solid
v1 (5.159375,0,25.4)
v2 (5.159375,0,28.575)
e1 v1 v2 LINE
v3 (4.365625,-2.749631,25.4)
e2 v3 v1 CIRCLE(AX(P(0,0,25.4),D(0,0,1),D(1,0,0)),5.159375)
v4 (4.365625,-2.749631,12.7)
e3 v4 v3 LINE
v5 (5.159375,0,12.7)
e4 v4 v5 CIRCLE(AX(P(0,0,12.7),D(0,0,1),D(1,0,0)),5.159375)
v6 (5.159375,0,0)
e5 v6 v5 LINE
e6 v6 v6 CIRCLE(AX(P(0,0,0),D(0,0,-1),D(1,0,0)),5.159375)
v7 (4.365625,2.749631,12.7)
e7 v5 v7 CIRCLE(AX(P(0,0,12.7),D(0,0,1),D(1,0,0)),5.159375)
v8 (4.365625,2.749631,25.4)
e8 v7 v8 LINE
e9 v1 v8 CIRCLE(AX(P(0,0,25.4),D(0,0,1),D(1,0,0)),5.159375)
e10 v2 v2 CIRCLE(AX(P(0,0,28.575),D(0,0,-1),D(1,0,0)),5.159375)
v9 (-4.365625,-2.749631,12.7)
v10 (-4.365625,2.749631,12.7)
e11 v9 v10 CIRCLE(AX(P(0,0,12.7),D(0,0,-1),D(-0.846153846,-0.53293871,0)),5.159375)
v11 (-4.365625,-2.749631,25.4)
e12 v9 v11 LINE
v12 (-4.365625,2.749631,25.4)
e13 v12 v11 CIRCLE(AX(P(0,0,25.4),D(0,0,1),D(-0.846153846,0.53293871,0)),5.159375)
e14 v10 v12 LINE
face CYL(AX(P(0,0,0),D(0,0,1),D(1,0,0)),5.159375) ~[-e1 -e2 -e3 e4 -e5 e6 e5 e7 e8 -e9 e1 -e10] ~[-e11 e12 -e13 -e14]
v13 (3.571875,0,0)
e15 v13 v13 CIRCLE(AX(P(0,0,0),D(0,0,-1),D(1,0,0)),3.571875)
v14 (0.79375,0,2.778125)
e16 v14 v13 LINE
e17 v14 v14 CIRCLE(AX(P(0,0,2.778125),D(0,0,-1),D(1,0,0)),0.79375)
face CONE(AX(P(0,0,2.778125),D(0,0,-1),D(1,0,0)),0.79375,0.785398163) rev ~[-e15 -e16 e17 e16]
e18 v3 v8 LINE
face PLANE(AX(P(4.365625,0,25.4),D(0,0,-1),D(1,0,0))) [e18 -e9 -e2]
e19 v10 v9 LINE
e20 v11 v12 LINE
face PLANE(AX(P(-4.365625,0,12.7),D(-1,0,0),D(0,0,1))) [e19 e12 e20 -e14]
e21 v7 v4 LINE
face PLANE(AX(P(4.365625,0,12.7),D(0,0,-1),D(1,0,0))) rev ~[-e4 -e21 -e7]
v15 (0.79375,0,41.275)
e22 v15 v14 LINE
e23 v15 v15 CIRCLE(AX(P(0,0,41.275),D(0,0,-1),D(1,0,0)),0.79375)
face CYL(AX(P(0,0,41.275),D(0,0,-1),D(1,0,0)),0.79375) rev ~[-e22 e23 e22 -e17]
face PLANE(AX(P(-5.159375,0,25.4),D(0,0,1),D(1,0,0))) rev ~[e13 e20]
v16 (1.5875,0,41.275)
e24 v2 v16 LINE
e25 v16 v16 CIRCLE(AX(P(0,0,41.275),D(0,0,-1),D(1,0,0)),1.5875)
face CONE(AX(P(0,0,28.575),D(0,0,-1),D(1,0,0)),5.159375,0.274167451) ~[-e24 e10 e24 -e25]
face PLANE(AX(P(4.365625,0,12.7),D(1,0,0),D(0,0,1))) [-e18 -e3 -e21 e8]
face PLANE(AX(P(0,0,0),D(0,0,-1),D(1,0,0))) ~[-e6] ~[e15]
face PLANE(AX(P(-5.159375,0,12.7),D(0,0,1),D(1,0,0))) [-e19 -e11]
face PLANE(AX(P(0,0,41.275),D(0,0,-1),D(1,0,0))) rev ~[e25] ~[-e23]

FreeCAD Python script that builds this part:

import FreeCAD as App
import Part
import Sketcher
Q = App.Units.Quantity

doc = App.newDocument("Part")
body = doc.addObject("PartDesign::Body", "Body")

sketch1 = body.newObject("Sketcher::SketchObject", "Sketch")
sketch1.AttachmentSupport = (doc.getObject("XZ_Plane"), [""])
sketch1.MapMode = "FlatFace"
sketch1.addGeometry([
    Part.LineSegment(App.Vector(3.6, 0, 0), App.Vector(5.2, 0, 0)),
    Part.LineSegment(App.Vector(5.2, 0, 0), App.Vector(5.2, 28.6, 0)),
    Part.LineSegment(App.Vector(5.2, 28.6, 0), App.Vector(1.6, 41.3, 0)),
    Part.LineSegment(App.Vector(1.6, 41.3, 0), App.Vector(0.8, 41.3, 0)),
    Part.LineSegment(App.Vector(0.8, 41.3, 0), App.Vector(0.8, 2.8, 0)),
    Part.LineSegment(App.Vector(0.8, 2.8, 0), App.Vector(3.6, 0, 0)),
], False)
sketch1.addConstraint([
    Sketcher.Constraint("Coincident", 0, 2, 1, 1),
    Sketcher.Constraint("Coincident", 1, 2, 2, 1),
    Sketcher.Constraint("Coincident", 2, 2, 3, 1),
    Sketcher.Constraint("Coincident", 3, 2, 4, 1),
    Sketcher.Constraint("Coincident", 4, 2, 5, 1),
    Sketcher.Constraint("Coincident", 5, 2, 0, 1),
    Sketcher.Constraint("Horizontal", 0),
    Sketcher.Constraint("Vertical", 1),
    Sketcher.Constraint("Horizontal", 3),
    Sketcher.Constraint("Vertical", 4),
    Sketcher.Constraint("PointOnObject", 0, 2, -1),
    Sketcher.Constraint("Angle", 5, Q("-45 deg")),
    Sketcher.Constraint("DistanceY", 1, 2, 2, 2, Q("0.5 in")),
    Sketcher.Constraint("DistanceX", 0, 1, 0, 2, Q("0.0625 in")),
    Sketcher.Constraint("DistanceX", 3, 2, 3, 1, Q("0.03125 in")),
    Sketcher.Constraint("DistanceY", 1, 1, 1, 2, Q("1.125 in")),
    Sketcher.Constraint("DistanceY", 4, 2, 4, 1, Q("1.515625 in")),
    Sketcher.Constraint("DistanceX", -1, 1, 0, 2, Q("0.203125 in")),
])
revolution = body.newObject("PartDesign::Revolution", "Revolution")
revolution.Profile = sketch1
revolution.ReferenceAxis = (sketch1, ["V_Axis"])
revolution.Angle = 360

sketch2 = body.newObject("Sketcher::SketchObject", "Sketch001")
sketch2.AttachmentSupport = (doc.getObject("XZ_Plane"), [""])
sketch2.MapMode = "FlatFace"
sketch2.addGeometry([
    Part.LineSegment(App.Vector(-5.2, 25.4, 0), App.Vector(-5.2, 12.7, 0)),
    Part.LineSegment(App.Vector(-5.2, 12.7, 0), App.Vector(-4.4, 12.7, 0)),
    Part.LineSegment(App.Vector(-4.4, 12.7, 0), App.Vector(-4.4, 25.4, 0)),
    Part.LineSegment(App.Vector(-4.4, 25.4, 0), App.Vector(-5.2, 25.4, 0)),
    Part.LineSegment(App.Vector(4.4, 25.4, 0), App.Vector(4.4, 12.7, 0)),
    Part.LineSegment(App.Vector(4.4, 12.7, 0), App.Vector(5.2, 12.7, 0)),
    Part.LineSegment(App.Vector(5.2, 12.7, 0), App.Vector(5.2, 25.4, 0)),
    Part.LineSegment(App.Vector(5.2, 25.4, 0), App.Vector(4.4, 25.4, 0)),
], False)
sketch2.addConstraint([
    Sketcher.Constraint("Coincident", 0, 2, 1, 1),
    Sketcher.Constraint("Coincident", 1, 2, 2, 1),
    Sketcher.Constraint("Coincident", 2, 2, 3, 1),
    Sketcher.Constraint("Coincident", 3, 2, 0, 1),
    Sketcher.Constraint("Coincident", 4, 2, 5, 1),
    Sketcher.Constraint("Coincident", 5, 2, 6, 1),
    Sketcher.Constraint("Coincident", 6, 2, 7, 1),
    Sketcher.Constraint("Coincident", 7, 2, 4, 1),
    Sketcher.Constraint("Vertical", 0),
    Sketcher.Constraint("Horizontal", 1),
    Sketcher.Constraint("Vertical", 2),
    Sketcher.Constraint("Horizontal", 3),
    Sketcher.Constraint("Vertical", 4),
    Sketcher.Constraint("Horizontal", 5),
    Sketcher.Constraint("Vertical", 6),
    Sketcher.Constraint("Horizontal", 7),
    Sketcher.Constraint("Symmetric", 1, 2, 4, 2, -2),
    Sketcher.Constraint("Symmetric", 3, 2, 6, 2, -2),
    Sketcher.Constraint("DistanceY", 0, 2, 0, 1, Q("0.5 in")),
    Sketcher.Constraint("DistanceY", -1, 1, 2, 2, Q("1 in")),
    Sketcher.Constraint("DistanceX", 1, 1, 1, 2, Q("0.03125 in")),
    Sketcher.Constraint("DistanceX", 0, 2, -1, 1, Q("0.203125 in")),
])
pocket1 = body.newObject("PartDesign::Pocket", "Pocket")
pocket1.Profile = sketch2
pocket1.Length = Q("1 in")
pocket1.Midplane = True

doc.recompute()
